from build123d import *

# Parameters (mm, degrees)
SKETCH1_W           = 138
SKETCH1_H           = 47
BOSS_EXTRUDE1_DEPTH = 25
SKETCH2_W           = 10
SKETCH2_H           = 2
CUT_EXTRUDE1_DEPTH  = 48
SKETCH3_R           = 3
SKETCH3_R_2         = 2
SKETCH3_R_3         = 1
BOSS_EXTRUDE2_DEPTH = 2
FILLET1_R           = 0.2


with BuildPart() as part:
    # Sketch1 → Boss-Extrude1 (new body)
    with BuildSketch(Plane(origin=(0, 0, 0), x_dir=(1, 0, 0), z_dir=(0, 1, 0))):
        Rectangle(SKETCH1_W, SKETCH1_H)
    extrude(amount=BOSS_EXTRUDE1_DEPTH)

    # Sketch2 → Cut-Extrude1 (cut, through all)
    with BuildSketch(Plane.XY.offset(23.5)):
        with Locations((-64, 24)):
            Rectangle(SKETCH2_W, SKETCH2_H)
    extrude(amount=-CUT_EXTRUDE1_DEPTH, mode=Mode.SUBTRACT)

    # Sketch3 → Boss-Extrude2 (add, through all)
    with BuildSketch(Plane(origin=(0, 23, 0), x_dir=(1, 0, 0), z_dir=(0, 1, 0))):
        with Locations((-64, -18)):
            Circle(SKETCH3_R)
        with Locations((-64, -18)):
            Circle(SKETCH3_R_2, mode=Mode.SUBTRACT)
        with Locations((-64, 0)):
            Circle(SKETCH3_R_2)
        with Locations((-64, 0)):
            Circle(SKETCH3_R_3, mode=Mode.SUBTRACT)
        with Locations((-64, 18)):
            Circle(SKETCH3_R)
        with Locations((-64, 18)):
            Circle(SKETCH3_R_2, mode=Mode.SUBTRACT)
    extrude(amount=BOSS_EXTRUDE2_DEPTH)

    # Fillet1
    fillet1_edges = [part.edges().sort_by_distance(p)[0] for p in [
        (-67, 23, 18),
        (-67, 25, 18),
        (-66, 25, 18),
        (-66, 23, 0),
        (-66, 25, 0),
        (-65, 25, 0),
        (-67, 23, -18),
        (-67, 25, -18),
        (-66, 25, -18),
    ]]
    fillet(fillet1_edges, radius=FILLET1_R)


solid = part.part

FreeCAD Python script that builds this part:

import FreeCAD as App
import Part
import Sketcher
from FreeCAD import Vector
Q = App.Units.Quantity


def edges_at(feature, points):
    """Names of the edges that pass closest to the given points."""
    edges = feature.Shape.Edges
    near = lambda p: min(range(len(edges)), key=lambda i: edges[i].distToShape(Part.Vertex(*p))[0])
    return sorted({f"Edge{near(p) + 1}" for p in points})


def add_polygon(sketch, points):
    """Adds a closed chain of lines whose ends are joined by coincident constraints."""
    first, n = sketch.GeometryCount, len(points)
    for a, b in zip(points, points[1:] + points[:1]):
        sketch.addGeometry(Part.LineSegment(App.Vector(*a, 0), App.Vector(*b, 0)), False)
    for i in range(n):
        sketch.addConstraint(Sketcher.Constraint("Coincident", first + i, 2, first + (i + 1) % n, 1))

doc = App.newDocument("Part")
params = doc.addObject("Spreadsheet::Sheet", "Params")
for row, (alias, value) in enumerate([
    ("sketch1_width", "138 mm"),
    ("sketch1_height", "47 mm"),
    ("pad1_length", "25 mm"),
    ("sketch2_width", "10 mm"),
    ("sketch2_height", "2 mm"),
    ("sketch3_diameter", "6 mm"),
    ("sketch3_diameter2", "4 mm"),
    ("sketch3_diameter3", "2 mm"),
    ("pad2_length", "2 mm"),
    ("fillet_radius", "0.2 mm"),
], start=1):
    params.set(f"A{row}", alias)
    params.set(f"B{row}", "=" + value)
    params.setAlias(f"B{row}", alias)

body = doc.addObject("PartDesign::Body", "Body")

sketch1 = doc.addObject("Sketcher::SketchObject", "Sketch")
body.addObject(sketch1)
sketch1.AttachmentSupport = (doc.XZ_Plane, [""])
sketch1.MapMode = "FlatFace"
add_polygon(sketch1, [(-69, -24), (-69, 24), (69, 24), (69, -24)])
sketch1.addConstraint([
    Sketcher.Constraint("Vertical", 0),
    Sketcher.Constraint("Horizontal", 1),
    Sketcher.Constraint("Vertical", 2),
    Sketcher.Constraint("Horizontal", 3),
    Sketcher.Constraint("Symmetric", 0, 2, 2, 2, -1, 1),
    Sketcher.Constraint("DistanceX", 1, 1, 1, 2, Q("138 mm")),
    Sketcher.Constraint("DistanceY", 0, 1, 0, 2, Q("47 mm")),
])
sketch1.setExpression("Constraints[9]", "Params.sketch1_width")
sketch1.setExpression("Constraints[10]", "Params.sketch1_height")
pad1 = doc.addObject("PartDesign::Pad", "Pad")
body.addObject(pad1)
pad1.Profile = sketch1
pad1.setExpression("Length", "Params.pad1_length")
pad1.Reversed = True

sketch2 = doc.addObject("Sketcher::SketchObject", "Sketch001")
body.addObject(sketch2)
sketch2.AttachmentSupport = (doc.XY_Plane, [""])
sketch2.MapMode = "FlatFace"
sketch2.AttachmentOffset = App.Placement(Vector(0, 0, 23.5), App.Rotation())
add_polygon(sketch2, [(-69, 25), (-69, 23), (-59, 23), (-59, 25)])
sketch2.addConstraint([
    Sketcher.Constraint("Vertical", 0),
    Sketcher.Constraint("Horizontal", 1),
    Sketcher.Constraint("Vertical", 2),
    Sketcher.Constraint("Horizontal", 3),
    Sketcher.Constraint("DistanceX", 1, 1, 1, 2, Q("10 mm")),
    Sketcher.Constraint("DistanceY", 0, 2, 0, 1, Q("2 mm")),
    Sketcher.Constraint("DistanceX", 0, 2, -1, 1, Q("69 mm")),
    Sketcher.Constraint("DistanceY", -1, 1, 0, 2, Q("23 mm")),
])
sketch2.setExpression("Constraints[8]", "Params.sketch2_width")
sketch2.setExpression("Constraints[9]", "Params.sketch2_height")
pocket1 = doc.addObject("PartDesign::Pocket", "Pocket")
body.addObject(pocket1)
pocket1.Profile = sketch2
pocket1.Type = "ThroughAll"

sketch3 = doc.addObject("Sketcher::SketchObject", "Sketch002")
body.addObject(sketch3)
sketch3.AttachmentSupport = (doc.XZ_Plane, [""])
sketch3.MapMode = "FlatFace"
sketch3.AttachmentOffset = App.Placement(Vector(0, 0, -23), App.Rotation())
sketch3.addGeometry([
    Part.Circle(Vector(-64, 18, 0), Vector(0, 0, 1), 3),
    Part.Circle(Vector(-64, 18, 0), Vector(0, 0, 1), 2),
    Part.Circle(Vector(-64, 0, 0), Vector(0, 0, 1), 2),
    Part.Circle(Vector(-64, 0, 0), Vector(0, 0, 1), 1),
    Part.Circle(Vector(-64, -18, 0), Vector(0, 0, 1), 3),
    Part.Circle(Vector(-64, -18, 0), Vector(0, 0, 1), 2),
], False)
sketch3.addConstraint([
    Sketcher.Constraint("Coincident", 1, 3, 0, 3),
    Sketcher.Constraint("Coincident", 3, 3, 2, 3),
    Sketcher.Constraint("Coincident", 5, 3, 4, 3),
    Sketcher.Constraint("Equal", 1, 2),
    Sketcher.Constraint("Equal", 0, 4),
    Sketcher.Constraint("Equal", 2, 5),
    Sketcher.Constraint("Symmetric", 0, 3, 4, 3, -1),
    Sketcher.Constraint("PointOnObject", 2, 3, -1),
    Sketcher.Constraint("Vertical", 1, 3, 2, 3),
    Sketcher.Constraint("Diameter", 0, Q("6 mm")),
    Sketcher.Constraint("Diameter", 1, Q("4 mm")),
    Sketcher.Constraint("Diameter", 3, Q("2 mm")),
    Sketcher.Constraint("DistanceX", 0, 3, -1, 1, Q("64 mm")),
    Sketcher.Constraint("DistanceY", -1, 1, 0, 3, Q("18 mm")),
])
sketch3.setExpression("Constraints[9]", "Params.sketch3_diameter")
sketch3.setExpression("Constraints[10]", "Params.sketch3_diameter2")
sketch3.setExpression("Constraints[11]", "Params.sketch3_diameter3")
pad2 = doc.addObject("PartDesign::Pad", "Pad001")
body.addObject(pad2)
pad2.Profile = sketch3
pad2.setExpression("Length", "Params.pad2_length")
pad2.Reversed = True
doc.recompute()

fillet = doc.addObject("PartDesign::Fillet", "Fillet")
body.addObject(fillet)
fillet.Base = (pad2, edges_at(pad2, [
    (-67, 23, 18),
    (-67, 25, 18),
    (-66, 25, 18),
    (-66, 23, 0),
    (-66, 25, 0),
    (-65, 25, 0),
    (-67, 23, -18),
    (-67, 25, -18),
    (-66, 25, -18),
]))
fillet.setExpression("Radius", "Params.fillet_radius")

doc.recompute()
